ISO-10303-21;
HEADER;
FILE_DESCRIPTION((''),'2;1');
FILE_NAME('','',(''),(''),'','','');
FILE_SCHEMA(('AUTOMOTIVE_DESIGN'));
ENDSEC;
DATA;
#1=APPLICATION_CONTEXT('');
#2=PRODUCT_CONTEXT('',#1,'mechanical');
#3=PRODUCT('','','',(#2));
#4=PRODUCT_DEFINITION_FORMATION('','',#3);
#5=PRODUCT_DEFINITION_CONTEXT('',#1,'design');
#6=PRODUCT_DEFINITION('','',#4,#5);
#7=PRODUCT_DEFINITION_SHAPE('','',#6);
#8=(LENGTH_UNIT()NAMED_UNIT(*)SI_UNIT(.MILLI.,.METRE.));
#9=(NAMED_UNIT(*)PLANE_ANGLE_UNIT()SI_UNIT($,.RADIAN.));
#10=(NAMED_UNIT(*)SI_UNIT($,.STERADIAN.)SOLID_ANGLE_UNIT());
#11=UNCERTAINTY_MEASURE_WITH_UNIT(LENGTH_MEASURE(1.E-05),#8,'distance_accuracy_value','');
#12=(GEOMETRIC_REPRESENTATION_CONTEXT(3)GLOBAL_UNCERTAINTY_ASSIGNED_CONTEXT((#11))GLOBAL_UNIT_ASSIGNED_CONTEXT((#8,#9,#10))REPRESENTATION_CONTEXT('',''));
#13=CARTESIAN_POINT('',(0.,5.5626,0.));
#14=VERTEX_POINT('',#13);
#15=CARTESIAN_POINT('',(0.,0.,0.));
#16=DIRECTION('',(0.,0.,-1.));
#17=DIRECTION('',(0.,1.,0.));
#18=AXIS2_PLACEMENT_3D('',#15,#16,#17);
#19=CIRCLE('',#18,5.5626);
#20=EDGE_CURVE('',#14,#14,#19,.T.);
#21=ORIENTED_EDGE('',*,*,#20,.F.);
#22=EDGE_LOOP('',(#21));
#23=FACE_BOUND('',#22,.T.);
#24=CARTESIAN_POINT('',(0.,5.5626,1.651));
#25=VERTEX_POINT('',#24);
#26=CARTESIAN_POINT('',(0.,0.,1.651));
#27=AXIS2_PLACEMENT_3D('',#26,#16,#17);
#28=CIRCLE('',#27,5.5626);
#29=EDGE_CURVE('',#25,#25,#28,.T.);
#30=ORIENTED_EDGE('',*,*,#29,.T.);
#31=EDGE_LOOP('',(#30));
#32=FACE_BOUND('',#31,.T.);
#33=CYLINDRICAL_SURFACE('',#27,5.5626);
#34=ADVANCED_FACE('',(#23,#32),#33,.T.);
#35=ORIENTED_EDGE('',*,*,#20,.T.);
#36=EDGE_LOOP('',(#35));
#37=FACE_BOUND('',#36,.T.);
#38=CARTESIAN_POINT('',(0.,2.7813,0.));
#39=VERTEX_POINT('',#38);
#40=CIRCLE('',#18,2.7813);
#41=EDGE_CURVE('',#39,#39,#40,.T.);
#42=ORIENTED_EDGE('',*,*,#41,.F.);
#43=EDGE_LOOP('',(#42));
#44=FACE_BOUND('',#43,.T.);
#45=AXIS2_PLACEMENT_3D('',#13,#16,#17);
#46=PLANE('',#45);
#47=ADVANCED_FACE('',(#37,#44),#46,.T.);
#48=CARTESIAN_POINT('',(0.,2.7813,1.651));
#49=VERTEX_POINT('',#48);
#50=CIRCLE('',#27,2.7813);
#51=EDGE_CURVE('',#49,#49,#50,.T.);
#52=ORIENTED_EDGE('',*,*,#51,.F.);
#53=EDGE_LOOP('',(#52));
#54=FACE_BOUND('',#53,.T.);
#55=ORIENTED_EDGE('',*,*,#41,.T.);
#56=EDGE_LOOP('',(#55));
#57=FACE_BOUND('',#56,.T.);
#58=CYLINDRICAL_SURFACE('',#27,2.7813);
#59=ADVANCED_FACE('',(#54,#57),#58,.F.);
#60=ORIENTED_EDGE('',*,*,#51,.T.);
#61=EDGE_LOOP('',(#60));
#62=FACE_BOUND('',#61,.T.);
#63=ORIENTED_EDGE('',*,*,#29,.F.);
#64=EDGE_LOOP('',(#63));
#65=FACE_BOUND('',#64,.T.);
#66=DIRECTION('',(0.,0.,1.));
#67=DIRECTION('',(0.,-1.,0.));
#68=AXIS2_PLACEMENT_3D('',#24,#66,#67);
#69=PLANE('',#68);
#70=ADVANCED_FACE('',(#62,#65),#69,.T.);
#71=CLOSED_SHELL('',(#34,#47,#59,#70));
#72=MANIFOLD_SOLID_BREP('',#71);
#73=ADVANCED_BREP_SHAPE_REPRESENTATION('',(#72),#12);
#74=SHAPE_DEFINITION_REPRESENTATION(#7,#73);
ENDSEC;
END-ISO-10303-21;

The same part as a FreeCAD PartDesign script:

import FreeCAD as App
import Part
import Sketcher
Q = App.Units.Quantity


def add_polygon(sketch, points):
    """Adds a closed chain of lines whose ends are joined by coincident constraints."""
    first, n = sketch.GeometryCount, len(points)
    for a, b in zip(points, points[1:] + points[:1]):
        sketch.addGeometry(Part.LineSegment(App.Vector(*a, 0), App.Vector(*b, 0)), False)
    for i in range(n):
        sketch.addConstraint(Sketcher.Constraint("Coincident", first + i, 2, first + (i + 1) % n, 1))

doc = App.newDocument("Part")
body = doc.addObject("PartDesign::Body", "Body")

# Sketch on YZ plane
sketch1 = doc.addObject("Sketcher::SketchObject", "Sketch")
body.addObject(sketch1)
sketch1.AttachmentSupport = (doc.YZ_Plane, [""])
sketch1.MapMode = "FlatFace"
add_polygon(sketch1, [(5.6, 1.7), (2.8, 1.7), (2.8, 0), (5.6, 0)])  # lines 0-3
sketch1.addConstraint([
    Sketcher.Constraint("Horizontal", 0),
    Sketcher.Constraint("Vertical", 1),
    Sketcher.Constraint("Horizontal", 2),
    Sketcher.Constraint("Vertical", 3),
    Sketcher.Constraint("PointOnObject", 1, 2, -1),
    Sketcher.Constraint("DistanceY", 1, 2, 1, 1, Q("0.065 in")),
    Sketcher.Constraint("DistanceX", 0, 2, 0, 1, Q("0.1095 in")),
    Sketcher.Constraint("DistanceX", -1, 1, 2, 2, Q("0.219 in")),
])
revolution = doc.addObject("PartDesign::Revolution", "Revolution")
body.addObject(revolution)
revolution.Profile = sketch1
revolution.ReferenceAxis = (sketch1, ["V_Axis"])
revolution.Angle = 360

doc.recompute()
